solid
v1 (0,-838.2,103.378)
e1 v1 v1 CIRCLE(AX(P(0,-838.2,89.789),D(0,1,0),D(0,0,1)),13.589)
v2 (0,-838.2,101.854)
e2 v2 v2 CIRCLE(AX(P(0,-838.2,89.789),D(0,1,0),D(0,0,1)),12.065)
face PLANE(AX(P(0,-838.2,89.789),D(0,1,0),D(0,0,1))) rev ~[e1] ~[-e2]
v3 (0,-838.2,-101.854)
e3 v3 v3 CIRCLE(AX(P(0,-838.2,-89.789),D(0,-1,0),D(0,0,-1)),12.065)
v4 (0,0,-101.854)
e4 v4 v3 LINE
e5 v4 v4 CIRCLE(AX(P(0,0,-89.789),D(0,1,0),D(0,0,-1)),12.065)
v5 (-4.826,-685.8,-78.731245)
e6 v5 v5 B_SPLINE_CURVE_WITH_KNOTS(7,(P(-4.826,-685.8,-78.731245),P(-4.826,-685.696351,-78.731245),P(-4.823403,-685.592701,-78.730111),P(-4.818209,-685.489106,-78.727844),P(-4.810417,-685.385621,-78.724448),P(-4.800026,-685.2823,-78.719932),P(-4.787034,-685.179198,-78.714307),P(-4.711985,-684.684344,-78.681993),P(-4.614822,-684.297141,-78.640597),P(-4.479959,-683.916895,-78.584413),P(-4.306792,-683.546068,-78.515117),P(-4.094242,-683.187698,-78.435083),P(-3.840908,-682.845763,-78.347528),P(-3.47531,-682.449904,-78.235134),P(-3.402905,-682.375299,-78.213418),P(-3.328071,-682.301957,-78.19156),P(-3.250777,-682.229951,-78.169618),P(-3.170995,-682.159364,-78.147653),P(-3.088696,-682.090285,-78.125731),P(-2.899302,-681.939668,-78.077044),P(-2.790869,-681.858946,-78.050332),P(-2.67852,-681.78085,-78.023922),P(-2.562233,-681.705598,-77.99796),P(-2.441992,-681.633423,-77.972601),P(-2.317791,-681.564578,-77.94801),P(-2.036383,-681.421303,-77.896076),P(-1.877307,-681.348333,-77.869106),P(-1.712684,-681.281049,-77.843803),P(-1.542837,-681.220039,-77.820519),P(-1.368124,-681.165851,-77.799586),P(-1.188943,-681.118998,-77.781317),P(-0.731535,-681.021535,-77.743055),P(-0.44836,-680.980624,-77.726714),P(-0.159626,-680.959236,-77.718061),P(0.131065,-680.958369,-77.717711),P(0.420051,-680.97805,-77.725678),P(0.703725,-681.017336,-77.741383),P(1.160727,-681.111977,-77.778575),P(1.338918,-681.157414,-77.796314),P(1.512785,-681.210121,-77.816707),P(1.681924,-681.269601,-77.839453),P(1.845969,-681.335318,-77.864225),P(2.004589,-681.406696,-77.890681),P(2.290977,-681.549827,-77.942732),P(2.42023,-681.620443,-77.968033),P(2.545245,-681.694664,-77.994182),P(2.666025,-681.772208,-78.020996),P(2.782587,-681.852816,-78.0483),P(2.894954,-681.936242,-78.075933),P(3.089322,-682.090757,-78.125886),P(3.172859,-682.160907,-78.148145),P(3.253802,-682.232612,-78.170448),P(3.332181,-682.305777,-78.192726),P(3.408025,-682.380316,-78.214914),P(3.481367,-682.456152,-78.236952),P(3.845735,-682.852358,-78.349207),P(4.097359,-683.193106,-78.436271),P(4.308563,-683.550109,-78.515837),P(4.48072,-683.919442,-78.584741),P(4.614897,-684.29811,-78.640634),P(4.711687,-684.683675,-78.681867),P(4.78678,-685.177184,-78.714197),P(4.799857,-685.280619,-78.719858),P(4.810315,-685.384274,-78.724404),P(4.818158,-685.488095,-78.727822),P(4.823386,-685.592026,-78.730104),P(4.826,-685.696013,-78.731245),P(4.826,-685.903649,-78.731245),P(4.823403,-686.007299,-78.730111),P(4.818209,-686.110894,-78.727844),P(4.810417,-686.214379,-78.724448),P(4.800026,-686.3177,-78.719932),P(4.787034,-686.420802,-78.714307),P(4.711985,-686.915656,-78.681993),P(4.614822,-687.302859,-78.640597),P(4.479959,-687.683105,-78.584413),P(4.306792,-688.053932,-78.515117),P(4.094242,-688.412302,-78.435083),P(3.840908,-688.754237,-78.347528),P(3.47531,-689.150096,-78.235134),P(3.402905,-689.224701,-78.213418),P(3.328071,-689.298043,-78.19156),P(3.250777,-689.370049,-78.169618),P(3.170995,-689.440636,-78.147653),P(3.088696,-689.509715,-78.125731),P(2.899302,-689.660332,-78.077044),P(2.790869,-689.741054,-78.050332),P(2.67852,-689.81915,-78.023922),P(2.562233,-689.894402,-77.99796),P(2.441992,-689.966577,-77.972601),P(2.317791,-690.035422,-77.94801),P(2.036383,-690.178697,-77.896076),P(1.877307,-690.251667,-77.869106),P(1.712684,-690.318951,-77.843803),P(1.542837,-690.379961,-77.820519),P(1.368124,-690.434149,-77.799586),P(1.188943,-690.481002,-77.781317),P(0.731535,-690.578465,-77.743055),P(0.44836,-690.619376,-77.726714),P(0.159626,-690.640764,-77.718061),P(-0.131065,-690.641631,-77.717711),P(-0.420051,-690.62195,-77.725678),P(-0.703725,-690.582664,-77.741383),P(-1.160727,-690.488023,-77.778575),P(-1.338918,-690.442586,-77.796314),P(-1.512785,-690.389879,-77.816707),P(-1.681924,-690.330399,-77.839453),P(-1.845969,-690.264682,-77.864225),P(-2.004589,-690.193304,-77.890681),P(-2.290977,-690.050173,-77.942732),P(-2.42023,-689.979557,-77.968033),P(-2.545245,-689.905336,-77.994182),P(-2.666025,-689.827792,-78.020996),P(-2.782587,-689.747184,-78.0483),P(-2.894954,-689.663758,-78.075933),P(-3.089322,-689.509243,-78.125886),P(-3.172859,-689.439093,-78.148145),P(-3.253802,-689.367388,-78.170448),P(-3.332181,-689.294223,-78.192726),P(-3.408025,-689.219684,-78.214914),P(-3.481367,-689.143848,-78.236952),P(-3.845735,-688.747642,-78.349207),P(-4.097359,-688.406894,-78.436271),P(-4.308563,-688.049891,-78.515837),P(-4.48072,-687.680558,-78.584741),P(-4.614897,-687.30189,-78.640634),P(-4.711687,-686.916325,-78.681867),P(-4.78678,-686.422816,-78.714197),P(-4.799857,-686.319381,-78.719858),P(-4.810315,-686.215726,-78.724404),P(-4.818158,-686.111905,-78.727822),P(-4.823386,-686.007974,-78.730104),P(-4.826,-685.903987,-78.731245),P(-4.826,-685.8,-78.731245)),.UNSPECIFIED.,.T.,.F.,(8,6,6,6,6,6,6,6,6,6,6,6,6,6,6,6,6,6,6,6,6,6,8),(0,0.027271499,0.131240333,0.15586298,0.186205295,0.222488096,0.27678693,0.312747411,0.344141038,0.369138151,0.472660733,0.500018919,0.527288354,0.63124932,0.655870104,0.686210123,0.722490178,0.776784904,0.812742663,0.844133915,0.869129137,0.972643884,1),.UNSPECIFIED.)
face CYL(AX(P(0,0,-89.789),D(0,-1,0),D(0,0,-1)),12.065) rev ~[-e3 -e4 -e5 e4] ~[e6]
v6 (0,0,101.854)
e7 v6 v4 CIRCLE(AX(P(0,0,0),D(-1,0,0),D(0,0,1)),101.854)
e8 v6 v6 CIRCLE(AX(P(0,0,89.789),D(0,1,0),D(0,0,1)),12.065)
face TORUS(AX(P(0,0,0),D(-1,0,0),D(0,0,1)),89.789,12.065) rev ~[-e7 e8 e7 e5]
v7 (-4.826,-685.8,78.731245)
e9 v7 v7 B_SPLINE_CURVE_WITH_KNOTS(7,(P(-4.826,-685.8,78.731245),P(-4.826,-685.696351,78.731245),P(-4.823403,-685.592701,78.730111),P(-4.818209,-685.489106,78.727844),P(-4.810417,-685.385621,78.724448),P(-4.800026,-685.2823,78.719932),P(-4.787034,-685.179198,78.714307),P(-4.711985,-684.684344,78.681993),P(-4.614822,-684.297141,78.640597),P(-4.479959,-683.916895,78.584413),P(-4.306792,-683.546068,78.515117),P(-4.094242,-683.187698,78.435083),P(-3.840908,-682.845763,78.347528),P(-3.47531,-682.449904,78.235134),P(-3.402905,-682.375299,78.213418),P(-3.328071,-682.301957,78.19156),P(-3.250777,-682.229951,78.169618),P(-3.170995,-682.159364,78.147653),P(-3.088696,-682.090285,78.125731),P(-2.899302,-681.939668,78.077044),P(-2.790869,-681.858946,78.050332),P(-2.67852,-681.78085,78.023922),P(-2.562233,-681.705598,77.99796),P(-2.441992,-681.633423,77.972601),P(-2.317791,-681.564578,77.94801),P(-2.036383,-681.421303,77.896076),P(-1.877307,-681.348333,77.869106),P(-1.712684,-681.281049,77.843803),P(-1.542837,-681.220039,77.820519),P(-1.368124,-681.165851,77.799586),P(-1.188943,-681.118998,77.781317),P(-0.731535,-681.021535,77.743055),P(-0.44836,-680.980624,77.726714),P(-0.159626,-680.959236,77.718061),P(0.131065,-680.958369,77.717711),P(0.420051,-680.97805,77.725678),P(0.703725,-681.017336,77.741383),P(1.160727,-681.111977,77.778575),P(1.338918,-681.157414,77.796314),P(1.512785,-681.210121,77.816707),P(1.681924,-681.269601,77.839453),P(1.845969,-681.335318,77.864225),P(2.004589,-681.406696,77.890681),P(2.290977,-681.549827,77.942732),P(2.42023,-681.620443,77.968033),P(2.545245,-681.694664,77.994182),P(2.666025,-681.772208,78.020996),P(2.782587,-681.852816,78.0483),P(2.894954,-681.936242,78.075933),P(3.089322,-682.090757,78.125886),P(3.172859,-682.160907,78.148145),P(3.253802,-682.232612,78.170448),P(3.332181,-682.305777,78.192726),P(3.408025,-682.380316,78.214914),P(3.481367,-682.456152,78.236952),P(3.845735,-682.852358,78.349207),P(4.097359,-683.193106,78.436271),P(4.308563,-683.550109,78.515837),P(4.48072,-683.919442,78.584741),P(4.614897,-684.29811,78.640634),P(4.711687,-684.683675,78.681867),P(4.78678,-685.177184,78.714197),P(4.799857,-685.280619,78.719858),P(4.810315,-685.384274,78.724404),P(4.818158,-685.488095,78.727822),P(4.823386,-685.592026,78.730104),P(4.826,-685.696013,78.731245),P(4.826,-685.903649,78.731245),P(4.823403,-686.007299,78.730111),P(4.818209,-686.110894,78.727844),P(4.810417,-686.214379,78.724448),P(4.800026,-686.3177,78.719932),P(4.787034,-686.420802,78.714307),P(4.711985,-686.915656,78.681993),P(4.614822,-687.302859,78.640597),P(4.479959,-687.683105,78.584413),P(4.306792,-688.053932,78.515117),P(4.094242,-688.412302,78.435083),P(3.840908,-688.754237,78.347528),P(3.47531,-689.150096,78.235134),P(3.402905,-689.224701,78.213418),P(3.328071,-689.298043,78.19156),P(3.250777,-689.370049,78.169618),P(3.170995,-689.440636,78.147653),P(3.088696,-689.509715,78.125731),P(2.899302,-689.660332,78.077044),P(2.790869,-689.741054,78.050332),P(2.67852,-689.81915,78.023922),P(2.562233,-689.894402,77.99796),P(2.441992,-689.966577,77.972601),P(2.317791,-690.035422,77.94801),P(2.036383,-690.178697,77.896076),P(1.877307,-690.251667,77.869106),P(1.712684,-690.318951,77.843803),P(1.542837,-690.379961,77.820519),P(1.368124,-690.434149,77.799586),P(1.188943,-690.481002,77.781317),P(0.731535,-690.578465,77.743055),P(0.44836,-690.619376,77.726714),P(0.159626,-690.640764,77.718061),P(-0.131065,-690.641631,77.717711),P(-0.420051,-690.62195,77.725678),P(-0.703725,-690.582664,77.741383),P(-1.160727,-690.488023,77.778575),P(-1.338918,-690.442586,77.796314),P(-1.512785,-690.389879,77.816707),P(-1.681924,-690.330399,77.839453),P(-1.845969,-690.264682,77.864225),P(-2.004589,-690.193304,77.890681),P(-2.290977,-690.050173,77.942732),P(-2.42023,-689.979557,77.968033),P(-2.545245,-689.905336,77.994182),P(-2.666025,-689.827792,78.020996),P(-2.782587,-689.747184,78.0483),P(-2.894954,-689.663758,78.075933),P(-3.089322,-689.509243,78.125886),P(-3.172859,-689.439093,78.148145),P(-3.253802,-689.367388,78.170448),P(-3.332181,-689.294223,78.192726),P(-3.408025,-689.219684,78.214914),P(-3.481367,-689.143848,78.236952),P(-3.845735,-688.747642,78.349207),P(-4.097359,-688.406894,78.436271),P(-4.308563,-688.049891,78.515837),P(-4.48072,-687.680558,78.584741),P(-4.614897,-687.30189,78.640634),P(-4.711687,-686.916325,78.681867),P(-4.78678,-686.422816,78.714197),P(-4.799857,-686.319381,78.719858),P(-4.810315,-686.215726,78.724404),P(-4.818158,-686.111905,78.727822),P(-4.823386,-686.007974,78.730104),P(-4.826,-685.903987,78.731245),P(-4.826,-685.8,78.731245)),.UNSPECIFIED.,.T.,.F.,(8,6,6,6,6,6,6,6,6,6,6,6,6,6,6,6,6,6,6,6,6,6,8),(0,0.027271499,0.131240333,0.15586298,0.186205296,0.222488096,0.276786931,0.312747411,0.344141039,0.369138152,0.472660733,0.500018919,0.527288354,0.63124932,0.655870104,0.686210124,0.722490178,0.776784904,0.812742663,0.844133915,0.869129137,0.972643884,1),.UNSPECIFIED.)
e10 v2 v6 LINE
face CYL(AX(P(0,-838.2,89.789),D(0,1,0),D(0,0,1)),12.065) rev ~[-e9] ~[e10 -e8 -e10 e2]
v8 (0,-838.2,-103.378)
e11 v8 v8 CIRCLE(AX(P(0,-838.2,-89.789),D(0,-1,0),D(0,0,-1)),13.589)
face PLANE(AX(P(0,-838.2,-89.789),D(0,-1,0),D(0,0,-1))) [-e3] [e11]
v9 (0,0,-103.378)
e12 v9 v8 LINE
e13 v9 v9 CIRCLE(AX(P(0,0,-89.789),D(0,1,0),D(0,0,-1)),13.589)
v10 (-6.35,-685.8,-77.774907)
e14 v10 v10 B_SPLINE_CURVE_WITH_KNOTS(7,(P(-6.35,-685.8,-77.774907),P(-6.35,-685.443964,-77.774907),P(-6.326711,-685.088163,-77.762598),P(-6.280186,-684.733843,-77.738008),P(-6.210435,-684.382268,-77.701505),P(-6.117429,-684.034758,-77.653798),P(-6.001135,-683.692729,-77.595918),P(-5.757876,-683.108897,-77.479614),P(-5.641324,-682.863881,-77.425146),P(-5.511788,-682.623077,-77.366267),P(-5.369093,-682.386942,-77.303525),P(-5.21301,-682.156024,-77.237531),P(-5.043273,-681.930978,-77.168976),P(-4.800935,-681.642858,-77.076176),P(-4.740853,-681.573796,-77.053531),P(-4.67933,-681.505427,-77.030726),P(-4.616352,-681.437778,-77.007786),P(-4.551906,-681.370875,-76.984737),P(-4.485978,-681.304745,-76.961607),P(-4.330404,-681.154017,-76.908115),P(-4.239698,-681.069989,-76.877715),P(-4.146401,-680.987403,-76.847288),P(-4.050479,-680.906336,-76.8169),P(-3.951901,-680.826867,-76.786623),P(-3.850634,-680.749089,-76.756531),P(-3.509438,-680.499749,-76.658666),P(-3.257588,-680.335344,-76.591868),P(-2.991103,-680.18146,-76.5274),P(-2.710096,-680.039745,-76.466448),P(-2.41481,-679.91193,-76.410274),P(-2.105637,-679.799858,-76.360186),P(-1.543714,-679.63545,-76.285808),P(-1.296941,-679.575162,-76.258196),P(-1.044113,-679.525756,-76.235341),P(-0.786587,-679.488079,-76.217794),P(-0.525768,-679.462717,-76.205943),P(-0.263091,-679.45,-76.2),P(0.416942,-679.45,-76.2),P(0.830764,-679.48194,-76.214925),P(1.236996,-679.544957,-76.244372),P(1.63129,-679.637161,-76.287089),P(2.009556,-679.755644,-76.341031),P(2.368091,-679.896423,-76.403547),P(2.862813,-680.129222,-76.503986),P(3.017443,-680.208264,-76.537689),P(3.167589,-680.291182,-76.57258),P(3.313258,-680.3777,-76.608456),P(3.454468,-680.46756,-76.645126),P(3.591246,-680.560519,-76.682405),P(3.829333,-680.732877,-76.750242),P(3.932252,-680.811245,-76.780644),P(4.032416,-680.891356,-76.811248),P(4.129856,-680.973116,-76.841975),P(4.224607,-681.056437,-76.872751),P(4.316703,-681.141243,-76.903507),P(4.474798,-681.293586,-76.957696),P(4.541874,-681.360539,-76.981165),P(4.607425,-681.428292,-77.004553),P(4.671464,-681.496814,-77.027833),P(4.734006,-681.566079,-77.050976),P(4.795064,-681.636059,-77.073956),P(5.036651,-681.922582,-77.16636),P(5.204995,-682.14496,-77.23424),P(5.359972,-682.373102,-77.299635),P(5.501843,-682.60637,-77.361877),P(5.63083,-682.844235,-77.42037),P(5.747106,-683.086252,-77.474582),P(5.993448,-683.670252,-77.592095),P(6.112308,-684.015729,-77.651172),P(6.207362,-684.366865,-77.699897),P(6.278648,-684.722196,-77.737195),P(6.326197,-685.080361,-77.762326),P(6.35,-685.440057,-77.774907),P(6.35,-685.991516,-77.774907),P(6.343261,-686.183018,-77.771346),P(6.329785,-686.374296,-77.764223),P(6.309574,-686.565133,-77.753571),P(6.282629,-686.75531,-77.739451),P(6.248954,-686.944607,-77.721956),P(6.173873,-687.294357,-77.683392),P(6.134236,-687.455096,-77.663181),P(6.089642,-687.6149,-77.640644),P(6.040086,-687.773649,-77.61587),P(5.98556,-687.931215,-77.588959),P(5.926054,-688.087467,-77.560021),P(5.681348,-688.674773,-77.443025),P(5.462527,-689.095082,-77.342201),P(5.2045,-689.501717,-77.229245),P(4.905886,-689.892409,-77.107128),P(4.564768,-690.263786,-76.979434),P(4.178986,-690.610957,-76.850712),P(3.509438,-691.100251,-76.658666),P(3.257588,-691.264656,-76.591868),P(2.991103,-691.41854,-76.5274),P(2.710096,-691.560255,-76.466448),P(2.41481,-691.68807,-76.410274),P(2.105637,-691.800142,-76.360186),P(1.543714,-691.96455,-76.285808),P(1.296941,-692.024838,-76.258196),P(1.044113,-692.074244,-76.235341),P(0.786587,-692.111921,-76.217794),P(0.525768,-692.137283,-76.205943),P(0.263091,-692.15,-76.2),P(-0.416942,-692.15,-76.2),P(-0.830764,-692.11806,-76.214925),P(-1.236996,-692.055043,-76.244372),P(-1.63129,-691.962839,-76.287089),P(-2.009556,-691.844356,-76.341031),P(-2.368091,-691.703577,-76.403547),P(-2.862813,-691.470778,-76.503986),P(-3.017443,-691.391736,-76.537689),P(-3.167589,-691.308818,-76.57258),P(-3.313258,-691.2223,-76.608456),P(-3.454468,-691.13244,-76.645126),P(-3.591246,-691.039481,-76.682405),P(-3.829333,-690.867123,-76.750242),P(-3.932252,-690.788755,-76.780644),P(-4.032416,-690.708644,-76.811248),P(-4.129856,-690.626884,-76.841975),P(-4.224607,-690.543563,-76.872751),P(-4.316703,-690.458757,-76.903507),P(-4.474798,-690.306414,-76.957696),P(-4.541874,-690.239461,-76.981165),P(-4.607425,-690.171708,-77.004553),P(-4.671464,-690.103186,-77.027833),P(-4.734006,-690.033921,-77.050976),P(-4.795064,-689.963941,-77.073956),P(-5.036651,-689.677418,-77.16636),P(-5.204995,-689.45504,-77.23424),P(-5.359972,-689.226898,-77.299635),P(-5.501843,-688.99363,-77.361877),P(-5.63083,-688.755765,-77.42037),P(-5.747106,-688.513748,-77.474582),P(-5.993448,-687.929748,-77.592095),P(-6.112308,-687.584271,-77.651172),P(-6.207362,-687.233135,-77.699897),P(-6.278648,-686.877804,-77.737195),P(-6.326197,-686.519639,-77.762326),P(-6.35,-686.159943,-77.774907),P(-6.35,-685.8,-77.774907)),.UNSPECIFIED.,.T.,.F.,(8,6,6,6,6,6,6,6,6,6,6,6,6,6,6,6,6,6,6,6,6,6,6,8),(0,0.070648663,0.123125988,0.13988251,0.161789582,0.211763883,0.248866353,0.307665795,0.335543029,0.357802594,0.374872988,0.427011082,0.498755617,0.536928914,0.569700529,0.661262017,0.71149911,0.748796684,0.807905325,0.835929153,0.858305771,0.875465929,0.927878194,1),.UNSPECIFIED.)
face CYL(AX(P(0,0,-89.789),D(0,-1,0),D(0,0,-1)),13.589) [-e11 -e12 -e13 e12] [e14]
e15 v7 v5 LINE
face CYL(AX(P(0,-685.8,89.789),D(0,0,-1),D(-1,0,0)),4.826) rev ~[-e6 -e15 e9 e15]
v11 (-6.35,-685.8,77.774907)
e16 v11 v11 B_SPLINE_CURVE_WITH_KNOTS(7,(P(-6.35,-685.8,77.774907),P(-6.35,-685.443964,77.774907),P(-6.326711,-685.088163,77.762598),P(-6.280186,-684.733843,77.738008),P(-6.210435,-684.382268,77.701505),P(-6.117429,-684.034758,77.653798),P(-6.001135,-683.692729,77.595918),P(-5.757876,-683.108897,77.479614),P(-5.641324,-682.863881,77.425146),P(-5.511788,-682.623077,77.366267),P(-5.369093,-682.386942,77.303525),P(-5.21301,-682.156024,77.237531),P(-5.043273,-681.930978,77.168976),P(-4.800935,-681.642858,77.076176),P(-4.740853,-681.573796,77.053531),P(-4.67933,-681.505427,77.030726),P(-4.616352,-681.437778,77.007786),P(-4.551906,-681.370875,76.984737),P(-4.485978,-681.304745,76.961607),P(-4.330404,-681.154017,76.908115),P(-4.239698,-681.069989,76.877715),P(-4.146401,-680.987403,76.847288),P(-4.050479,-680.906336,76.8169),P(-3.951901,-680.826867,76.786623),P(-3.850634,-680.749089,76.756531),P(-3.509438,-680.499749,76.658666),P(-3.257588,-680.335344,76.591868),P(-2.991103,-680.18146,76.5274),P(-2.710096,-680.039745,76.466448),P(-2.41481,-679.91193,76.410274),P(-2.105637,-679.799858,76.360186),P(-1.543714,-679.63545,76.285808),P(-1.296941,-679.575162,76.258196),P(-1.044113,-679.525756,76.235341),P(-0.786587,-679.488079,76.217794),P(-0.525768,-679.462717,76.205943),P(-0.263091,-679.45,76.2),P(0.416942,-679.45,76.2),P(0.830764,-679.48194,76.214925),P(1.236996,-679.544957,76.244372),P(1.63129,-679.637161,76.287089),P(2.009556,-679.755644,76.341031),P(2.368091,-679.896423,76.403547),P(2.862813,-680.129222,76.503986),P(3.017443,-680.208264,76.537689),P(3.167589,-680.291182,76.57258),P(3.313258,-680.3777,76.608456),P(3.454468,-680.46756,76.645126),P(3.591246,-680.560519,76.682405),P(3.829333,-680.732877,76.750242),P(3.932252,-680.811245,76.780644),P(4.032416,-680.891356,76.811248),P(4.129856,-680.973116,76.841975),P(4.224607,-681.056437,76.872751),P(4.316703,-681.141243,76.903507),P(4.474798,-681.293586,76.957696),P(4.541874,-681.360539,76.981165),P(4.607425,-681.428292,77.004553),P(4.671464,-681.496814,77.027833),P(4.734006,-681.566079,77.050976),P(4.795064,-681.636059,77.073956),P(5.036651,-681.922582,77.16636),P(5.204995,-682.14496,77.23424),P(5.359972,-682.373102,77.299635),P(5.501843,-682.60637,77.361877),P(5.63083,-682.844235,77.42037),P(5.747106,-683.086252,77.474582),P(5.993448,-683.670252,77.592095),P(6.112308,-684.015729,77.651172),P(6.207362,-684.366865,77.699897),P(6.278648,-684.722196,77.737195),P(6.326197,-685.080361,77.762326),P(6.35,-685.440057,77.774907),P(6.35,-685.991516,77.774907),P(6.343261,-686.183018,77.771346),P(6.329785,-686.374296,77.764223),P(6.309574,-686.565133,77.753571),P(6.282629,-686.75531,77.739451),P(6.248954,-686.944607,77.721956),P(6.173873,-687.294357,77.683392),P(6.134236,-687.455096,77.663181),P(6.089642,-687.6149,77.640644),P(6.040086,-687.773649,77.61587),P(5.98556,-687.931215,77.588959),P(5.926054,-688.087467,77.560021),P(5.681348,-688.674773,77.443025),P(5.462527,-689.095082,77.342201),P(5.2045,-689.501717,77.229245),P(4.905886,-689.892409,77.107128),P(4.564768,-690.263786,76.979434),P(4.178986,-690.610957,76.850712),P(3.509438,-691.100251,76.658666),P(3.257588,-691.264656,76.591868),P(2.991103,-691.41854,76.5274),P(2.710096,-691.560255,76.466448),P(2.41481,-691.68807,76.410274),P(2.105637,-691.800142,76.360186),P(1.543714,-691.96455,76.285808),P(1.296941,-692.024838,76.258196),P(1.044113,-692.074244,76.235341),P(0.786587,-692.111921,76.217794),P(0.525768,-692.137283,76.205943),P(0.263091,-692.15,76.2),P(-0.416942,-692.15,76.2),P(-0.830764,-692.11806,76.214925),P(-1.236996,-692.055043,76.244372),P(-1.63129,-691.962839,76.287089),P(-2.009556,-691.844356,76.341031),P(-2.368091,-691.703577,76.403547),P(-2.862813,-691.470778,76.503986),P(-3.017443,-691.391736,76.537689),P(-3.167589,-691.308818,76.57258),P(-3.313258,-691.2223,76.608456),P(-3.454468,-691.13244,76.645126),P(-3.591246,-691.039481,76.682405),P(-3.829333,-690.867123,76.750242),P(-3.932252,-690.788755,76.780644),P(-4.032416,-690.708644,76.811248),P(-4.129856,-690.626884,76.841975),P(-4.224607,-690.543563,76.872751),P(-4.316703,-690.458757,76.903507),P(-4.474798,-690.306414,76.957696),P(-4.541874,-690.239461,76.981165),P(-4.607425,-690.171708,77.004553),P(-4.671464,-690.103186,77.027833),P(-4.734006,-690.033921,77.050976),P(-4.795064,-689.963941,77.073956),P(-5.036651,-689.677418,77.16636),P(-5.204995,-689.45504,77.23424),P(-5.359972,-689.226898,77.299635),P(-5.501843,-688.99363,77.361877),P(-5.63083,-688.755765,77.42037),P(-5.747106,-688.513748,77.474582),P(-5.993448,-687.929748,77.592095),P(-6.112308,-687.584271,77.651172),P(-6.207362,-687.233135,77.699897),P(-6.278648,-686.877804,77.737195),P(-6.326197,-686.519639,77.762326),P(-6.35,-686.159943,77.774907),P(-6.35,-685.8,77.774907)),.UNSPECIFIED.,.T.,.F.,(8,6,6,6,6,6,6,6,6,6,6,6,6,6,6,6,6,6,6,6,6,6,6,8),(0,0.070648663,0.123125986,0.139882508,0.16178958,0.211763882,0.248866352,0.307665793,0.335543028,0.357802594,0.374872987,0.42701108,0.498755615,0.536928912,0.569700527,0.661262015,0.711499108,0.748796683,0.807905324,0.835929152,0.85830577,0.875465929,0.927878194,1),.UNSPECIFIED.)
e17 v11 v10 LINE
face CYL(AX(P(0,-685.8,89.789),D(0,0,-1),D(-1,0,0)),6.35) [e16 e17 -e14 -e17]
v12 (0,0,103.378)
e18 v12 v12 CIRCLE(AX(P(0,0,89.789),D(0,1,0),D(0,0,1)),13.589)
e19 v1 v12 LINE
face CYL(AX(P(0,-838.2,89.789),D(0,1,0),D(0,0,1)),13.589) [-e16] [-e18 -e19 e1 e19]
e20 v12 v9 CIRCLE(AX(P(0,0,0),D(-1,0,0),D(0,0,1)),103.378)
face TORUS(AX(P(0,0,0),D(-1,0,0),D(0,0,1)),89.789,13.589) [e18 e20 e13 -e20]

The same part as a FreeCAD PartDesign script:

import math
import FreeCAD as App
import Part
import Sketcher

V = App.Vector
Q = App.Units.Quantity


def faces_at(feature, points):
    """Names of the faces that lie closest to the given points."""
    faces = feature.Shape.Faces
    near = lambda p: min(range(len(faces)), key=lambda i: faces[i].distToShape(Part.Vertex(*p))[0])
    return sorted({f"Face{near(p) + 1}" for p in points})

doc = App.newDocument("Part")
body = doc.addObject("PartDesign::Body", "Body")

# Sketch on XZ plane
sketch1 = doc.addObject("Sketcher::SketchObject", "Sketch")
body.addObject(sketch1)
sketch1.AttachmentSupport = (doc.XZ_Plane, [""])
sketch1.MapMode = "FlatFace"
sketch1.AttachmentOffset = App.Placement(V(0, 0, 33 * 25.4), App.Rotation())
sketch1.addGeometry(Part.Circle(V(0, 90, 0), V(0, 0, 1), 14), False)
sketch1.addConstraint([
    Sketcher.Constraint("PointOnObject", 0, 3, -2),
    Sketcher.Constraint("Diameter", 0, Q("1.07 in")),
    Sketcher.Constraint("DistanceY", -1, 1, 0, 3, Q("3.535 in")),
])

# Sketch on YZ plane
sketch2 = doc.addObject("Sketcher::SketchObject", "Sketch001")
body.addObject(sketch2)
sketch2.AttachmentSupport = (doc.YZ_Plane, [""])
sketch2.MapMode = "FlatFace"
sketch2.addGeometry([
    Part.LineSegment(V(-838, 90, 0), V(0, 90, 0)),
    Part.ArcOfCircle(Part.Circle(V(0, 0, 0), V(0, 0, 1), 90), math.radians(-90), math.radians(90)),
    Part.LineSegment(V(0, -90, 0), V(-838, -90, 0)),
], False)
sketch2.addConstraint([
    Sketcher.Constraint("Tangent", 0, 2, 1, 2),
    Sketcher.Constraint("Tangent", 1, 1, 2, 1),
    Sketcher.Constraint("Horizontal", 0),
    Sketcher.Constraint("Horizontal", 2),
    Sketcher.Constraint("Coincident", 1, 3, -1, 1),
    Sketcher.Constraint("Vertical", 0, 1, 2, 2),
    Sketcher.Constraint("DistanceX", 0, 1, 0, 2, Q("33 in")),
    Sketcher.Constraint("Radius", 1, Q("3.535 in")),
])
doc.recompute()

additivepipe = doc.addObject("PartDesign::AdditivePipe", "AdditivePipe")
body.addObject(additivepipe)
additivepipe.Profile = sketch1
additivepipe.Spine = (sketch2, ["Edge1", "Edge2", "Edge3"])

# Sketch on XY plane
sketch3 = doc.addObject("Sketcher::SketchObject", "Sketch002")
body.addObject(sketch3)
sketch3.AttachmentSupport = (doc.XY_Plane, [""])
sketch3.MapMode = "FlatFace"
sketch3.AttachmentOffset = App.Placement(V(0, 0, 3.535 * 25.4), App.Rotation())
sketch3.addGeometry(Part.Circle(V(0, -686, 0), V(0, 0, 1), 6), False)
sketch3.addConstraint([
    Sketcher.Constraint("PointOnObject", 0, 3, -2),
    Sketcher.Constraint("Diameter", 0, Q("0.5 in")),
    Sketcher.Constraint("DistanceY", 0, 3, -1, 1, Q("27 in")),
])

# Sketch on XZ plane
sketch4 = doc.addObject("Sketcher::SketchObject", "Sketch003")
body.addObject(sketch4)
sketch4.AttachmentSupport = (doc.XZ_Plane, [""])
sketch4.MapMode = "FlatFace"
sketch4.AttachmentOffset = App.Placement(V(0, 0, 27 * 25.4), App.Rotation())
sketch4.addGeometry(Part.LineSegment(V(0, 90, 0), V(0, -90, 0)), False)
sketch4.addConstraint([
    Sketcher.Constraint("Vertical", 0),
    Sketcher.Constraint("Symmetric", 0, 1, 0, 2, -1, 1),
    Sketcher.Constraint("DistanceY", 0, 2, 0, 1, Q("7.07 in")),
])
doc.recompute()

additivepipe2 = doc.addObject("PartDesign::AdditivePipe", "AdditivePipe001")
body.addObject(additivepipe2)
additivepipe2.Profile = sketch3
additivepipe2.Spine = (sketch4, ["Edge1"])
doc.recompute()

thickness = doc.addObject("PartDesign::Thickness", "Thickness")
body.addObject(thickness)
thickness.Base = (additivepipe2, faces_at(additivepipe2, [(0, -838.2, 89.789), (0, -838.2, -89.789)]))
thickness.Value = Q("0.06 in")
thickness.Reversed = True
thickness.Join = "Intersection"

doc.recompute()
